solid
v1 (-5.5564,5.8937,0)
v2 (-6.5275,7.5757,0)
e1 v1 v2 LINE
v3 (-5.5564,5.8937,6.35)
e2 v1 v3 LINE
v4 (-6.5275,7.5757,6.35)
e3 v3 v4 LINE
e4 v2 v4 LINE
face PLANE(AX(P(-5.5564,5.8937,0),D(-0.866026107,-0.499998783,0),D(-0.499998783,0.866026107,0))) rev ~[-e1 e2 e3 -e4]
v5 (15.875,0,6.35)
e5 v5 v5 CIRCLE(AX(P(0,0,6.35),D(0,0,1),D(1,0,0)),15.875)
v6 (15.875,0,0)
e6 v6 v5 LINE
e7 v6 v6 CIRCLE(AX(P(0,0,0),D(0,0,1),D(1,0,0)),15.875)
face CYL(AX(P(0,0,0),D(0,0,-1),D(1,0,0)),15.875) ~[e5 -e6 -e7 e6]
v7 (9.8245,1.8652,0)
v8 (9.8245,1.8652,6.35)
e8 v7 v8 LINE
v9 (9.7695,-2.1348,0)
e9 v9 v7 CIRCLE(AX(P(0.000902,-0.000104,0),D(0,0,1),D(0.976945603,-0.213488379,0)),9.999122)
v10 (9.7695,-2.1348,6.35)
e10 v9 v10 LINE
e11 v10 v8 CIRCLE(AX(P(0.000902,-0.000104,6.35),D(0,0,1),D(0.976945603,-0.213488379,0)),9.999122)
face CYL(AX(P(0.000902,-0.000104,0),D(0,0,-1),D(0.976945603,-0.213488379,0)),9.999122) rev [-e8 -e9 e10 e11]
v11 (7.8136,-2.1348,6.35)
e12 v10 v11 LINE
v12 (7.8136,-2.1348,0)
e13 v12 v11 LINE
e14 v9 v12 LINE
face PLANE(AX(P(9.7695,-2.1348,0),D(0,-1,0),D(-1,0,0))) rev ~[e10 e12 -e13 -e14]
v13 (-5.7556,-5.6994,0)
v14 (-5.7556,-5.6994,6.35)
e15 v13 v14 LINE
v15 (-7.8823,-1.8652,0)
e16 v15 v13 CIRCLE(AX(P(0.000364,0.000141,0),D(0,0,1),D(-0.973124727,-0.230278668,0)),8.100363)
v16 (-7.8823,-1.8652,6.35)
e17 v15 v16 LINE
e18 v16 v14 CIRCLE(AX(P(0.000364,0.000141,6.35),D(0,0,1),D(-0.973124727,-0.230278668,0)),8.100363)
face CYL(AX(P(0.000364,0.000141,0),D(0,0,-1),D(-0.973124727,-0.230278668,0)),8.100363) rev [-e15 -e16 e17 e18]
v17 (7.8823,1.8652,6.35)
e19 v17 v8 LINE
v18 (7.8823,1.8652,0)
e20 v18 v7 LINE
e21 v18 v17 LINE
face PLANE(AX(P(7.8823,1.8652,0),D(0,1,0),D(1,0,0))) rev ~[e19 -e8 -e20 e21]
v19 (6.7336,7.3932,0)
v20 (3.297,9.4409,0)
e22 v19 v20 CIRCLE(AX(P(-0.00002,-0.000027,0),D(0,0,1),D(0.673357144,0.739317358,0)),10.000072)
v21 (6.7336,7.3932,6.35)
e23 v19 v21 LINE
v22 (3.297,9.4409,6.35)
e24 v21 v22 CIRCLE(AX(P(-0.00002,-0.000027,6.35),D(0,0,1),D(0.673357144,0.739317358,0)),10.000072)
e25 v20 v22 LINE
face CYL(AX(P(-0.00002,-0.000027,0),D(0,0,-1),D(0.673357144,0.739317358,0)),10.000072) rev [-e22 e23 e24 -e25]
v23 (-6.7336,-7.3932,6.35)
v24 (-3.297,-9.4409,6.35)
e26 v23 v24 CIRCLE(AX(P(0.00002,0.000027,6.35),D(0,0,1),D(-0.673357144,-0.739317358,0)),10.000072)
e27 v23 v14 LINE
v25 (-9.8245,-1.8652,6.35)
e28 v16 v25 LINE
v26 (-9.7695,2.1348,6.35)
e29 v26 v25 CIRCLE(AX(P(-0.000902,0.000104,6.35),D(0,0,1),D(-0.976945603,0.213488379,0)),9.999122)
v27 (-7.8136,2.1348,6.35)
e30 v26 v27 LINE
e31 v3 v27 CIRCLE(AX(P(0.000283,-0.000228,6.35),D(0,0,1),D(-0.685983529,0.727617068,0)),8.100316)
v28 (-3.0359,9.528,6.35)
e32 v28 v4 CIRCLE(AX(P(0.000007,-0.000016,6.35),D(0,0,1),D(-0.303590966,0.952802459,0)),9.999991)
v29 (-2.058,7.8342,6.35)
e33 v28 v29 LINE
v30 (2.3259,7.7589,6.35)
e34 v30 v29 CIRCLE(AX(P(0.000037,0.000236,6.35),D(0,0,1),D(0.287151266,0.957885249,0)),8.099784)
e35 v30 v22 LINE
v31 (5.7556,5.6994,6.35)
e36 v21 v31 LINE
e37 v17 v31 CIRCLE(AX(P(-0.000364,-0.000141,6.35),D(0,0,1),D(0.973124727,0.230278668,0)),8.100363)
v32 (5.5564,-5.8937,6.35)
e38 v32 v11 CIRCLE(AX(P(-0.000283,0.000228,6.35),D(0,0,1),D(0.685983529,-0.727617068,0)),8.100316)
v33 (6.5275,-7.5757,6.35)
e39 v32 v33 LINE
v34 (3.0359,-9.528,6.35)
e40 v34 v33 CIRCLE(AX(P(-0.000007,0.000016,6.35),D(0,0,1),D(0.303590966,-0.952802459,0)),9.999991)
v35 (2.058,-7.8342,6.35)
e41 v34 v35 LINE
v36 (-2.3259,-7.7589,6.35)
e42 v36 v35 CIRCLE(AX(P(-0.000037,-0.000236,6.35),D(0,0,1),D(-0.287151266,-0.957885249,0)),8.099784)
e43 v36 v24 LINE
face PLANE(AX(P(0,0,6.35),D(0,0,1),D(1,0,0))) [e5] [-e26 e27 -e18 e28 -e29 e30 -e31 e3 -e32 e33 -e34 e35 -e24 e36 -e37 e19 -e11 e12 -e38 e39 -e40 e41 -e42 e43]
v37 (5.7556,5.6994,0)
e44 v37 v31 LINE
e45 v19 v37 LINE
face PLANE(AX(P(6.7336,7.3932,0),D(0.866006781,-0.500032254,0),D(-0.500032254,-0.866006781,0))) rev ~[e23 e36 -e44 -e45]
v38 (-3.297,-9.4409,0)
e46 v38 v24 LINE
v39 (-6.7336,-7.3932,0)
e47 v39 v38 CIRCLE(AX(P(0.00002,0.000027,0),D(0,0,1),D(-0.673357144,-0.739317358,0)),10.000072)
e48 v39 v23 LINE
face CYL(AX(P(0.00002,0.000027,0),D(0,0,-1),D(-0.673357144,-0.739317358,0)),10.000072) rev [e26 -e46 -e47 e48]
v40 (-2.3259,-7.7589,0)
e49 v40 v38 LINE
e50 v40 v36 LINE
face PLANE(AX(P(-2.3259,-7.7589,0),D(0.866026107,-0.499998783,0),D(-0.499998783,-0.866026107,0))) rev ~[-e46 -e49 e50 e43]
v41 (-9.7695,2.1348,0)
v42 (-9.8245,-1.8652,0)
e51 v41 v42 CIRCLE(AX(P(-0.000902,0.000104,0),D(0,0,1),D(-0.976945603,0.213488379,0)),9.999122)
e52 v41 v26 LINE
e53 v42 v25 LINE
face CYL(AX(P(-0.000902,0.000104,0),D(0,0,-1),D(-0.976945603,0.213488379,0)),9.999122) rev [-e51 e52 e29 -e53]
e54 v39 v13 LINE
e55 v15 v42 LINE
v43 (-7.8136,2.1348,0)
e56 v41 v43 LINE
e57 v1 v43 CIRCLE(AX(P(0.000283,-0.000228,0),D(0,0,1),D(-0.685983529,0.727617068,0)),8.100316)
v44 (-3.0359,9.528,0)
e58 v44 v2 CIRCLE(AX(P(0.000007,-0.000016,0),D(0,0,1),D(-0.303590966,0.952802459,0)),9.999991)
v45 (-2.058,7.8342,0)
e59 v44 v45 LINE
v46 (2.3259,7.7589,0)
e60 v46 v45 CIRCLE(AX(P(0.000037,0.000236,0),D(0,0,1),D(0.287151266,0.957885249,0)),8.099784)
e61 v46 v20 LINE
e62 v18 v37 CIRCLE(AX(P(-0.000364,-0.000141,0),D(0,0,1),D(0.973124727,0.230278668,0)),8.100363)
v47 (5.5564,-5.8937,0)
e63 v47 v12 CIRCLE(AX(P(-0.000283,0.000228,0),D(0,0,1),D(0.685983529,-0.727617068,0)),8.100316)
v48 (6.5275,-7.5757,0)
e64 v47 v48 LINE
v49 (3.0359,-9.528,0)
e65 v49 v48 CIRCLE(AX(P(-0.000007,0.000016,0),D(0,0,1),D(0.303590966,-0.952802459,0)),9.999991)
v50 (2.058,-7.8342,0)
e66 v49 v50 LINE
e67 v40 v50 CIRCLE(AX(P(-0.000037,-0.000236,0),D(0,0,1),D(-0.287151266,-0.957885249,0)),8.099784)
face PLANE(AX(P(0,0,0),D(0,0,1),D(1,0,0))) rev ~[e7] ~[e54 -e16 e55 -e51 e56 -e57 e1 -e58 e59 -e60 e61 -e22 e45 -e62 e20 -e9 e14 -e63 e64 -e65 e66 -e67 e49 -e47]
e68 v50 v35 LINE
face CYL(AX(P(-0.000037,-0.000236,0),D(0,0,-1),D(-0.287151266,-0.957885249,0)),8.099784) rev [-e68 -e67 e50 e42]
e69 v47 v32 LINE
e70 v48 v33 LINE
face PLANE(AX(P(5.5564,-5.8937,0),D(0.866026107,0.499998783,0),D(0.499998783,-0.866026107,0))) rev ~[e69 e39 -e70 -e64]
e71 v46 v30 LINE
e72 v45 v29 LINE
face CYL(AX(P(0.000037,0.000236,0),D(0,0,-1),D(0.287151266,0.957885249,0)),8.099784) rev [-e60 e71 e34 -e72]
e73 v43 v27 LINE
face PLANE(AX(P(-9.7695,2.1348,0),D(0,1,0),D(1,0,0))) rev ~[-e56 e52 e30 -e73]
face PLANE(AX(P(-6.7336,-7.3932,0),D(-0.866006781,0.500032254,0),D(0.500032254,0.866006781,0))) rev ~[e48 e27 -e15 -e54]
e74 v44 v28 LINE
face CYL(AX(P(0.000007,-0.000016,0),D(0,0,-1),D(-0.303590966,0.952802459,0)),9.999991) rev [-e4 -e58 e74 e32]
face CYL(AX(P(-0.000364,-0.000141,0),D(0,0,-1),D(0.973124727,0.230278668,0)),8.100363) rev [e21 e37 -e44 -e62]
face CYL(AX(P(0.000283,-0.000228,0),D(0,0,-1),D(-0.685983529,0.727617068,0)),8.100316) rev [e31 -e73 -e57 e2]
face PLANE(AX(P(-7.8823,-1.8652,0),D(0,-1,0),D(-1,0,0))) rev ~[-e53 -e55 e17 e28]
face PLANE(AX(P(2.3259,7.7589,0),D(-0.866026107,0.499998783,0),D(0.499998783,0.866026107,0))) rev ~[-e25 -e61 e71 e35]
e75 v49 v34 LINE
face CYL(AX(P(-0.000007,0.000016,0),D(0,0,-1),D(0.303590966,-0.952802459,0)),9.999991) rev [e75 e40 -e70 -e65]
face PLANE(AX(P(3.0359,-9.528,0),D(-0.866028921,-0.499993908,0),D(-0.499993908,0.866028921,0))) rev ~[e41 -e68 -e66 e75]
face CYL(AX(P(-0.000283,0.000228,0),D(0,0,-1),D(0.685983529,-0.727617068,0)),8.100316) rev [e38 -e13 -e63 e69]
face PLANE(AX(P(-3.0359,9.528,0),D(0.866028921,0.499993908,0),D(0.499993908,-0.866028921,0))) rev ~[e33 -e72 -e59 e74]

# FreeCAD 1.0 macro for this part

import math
import FreeCAD as App
import Part
import Sketcher
from FreeCAD import Vector
Q = App.Units.Quantity

doc = App.newDocument("Part")
params = doc.addObject("Spreadsheet::Sheet", "Params")
for row, (alias, value) in enumerate([
    ("sketch1_diameter", "1.25 in"),
    ("sketch1_width", "0.077 in"),
    ("sketch1_length", "0.077 in"),
    ("pad1_length", "0.25 in"),
], start=1):
    params.set(f"A{row}", alias)
    params.set(f"B{row}", "=" + value)
    params.setAlias(f"B{row}", alias)

body = doc.addObject("PartDesign::Body", "Body")

sketch1 = body.newObject("Sketcher::SketchObject", "Sketch")
sketch1.AttachmentSupport = (doc.getObject("XY_Plane"), [""])
sketch1.MapMode = "FlatFace"
sketch1.addGeometry([
    Part.Circle(Vector(0, 0, 0), Vector(0, 0, 1), 15.9),
    Part.ArcOfCircle(Part.Circle(Vector(0, 0, 0), Vector(0, 0, 1), 8.1), math.radians(13), math.radians(45)),
    Part.LineSegment(Vector(7.9, 1.9, 0), Vector(9.8, 1.9, 0)),
    Part.ArcOfCircle(Part.Circle(Vector(0, 0, 0), Vector(0, 0, 1), 10), math.radians(-12), math.radians(11)),
    Part.LineSegment(Vector(9.8, -2.1, 0), Vector(7.8, -2.1, 0)),
    Part.ArcOfCircle(Part.Circle(Vector(0, 0, 0), Vector(0, 0, 1), 8.1), math.radians(-47), math.radians(-15)),
    Part.LineSegment(Vector(5.6, -5.9, 0), Vector(6.5, -7.6, 0)),
    Part.ArcOfCircle(Part.Circle(Vector(0, 0, 0), Vector(0, 0, 1), 10), math.radians(-72), math.radians(-49)),
    Part.LineSegment(Vector(3, -9.5, 0), Vector(2.1, -7.8, 0)),
    Part.ArcOfCircle(Part.Circle(Vector(0, 0, 0), Vector(0, 0, 1), 8.1), math.radians(-107), math.radians(-75)),
    Part.LineSegment(Vector(-2.3, -7.8, 0), Vector(-3.3, -9.4, 0)),
    Part.ArcOfCircle(Part.Circle(Vector(0, 0, 0), Vector(0, 0, 1), 10), math.radians(-132), math.radians(-109)),
    Part.LineSegment(Vector(-6.7, -7.4, 0), Vector(-5.8, -5.7, 0)),
    Part.ArcOfCircle(Part.Circle(Vector(0, 0, 0), Vector(0, 0, 1), 8.1), math.radians(-167), math.radians(-135)),
    Part.LineSegment(Vector(-7.9, -1.9, 0), Vector(-9.8, -1.9, 0)),
    Part.ArcOfCircle(Part.Circle(Vector(0, 0, 0), Vector(0, 0, 1), 10), math.radians(168), math.radians(191)),
    Part.LineSegment(Vector(-9.8, 2.1, 0), Vector(-7.8, 2.1, 0)),
    Part.ArcOfCircle(Part.Circle(Vector(0, 0, 0), Vector(0, 0, 1), 8.1), math.radians(133), math.radians(165)),
    Part.LineSegment(Vector(-5.6, 5.9, 0), Vector(-6.5, 7.6, 0)),
    Part.ArcOfCircle(Part.Circle(Vector(0, 0, 0), Vector(0, 0, 1), 10), math.radians(108), math.radians(131)),
    Part.LineSegment(Vector(-3, 9.5, 0), Vector(-2.1, 7.8, 0)),
    Part.ArcOfCircle(Part.Circle(Vector(0, 0, 0), Vector(0, 0, 1), 8.1), math.radians(73), math.radians(105)),
    Part.LineSegment(Vector(2.3, 7.8, 0), Vector(3.3, 9.4, 0)),
    Part.ArcOfCircle(Part.Circle(Vector(0, 0, 0), Vector(0, 0, 1), 10), math.radians(48), math.radians(71)),
    Part.LineSegment(Vector(6.7, 7.4, 0), Vector(5.8, 5.7, 0)),
], False)
sketch1.addConstraint([
    Sketcher.Constraint("Coincident", 1, 1, 2, 1),
    Sketcher.Constraint("Coincident", 2, 2, 3, 2),
    Sketcher.Constraint("Coincident", 3, 1, 4, 1),
    Sketcher.Constraint("Coincident", 4, 2, 5, 2),
    Sketcher.Constraint("Coincident", 5, 1, 6, 1),
    Sketcher.Constraint("Coincident", 6, 2, 7, 2),
    Sketcher.Constraint("Coincident", 7, 1, 8, 1),
    Sketcher.Constraint("Coincident", 8, 2, 9, 2),
    Sketcher.Constraint("Coincident", 9, 1, 10, 1),
    Sketcher.Constraint("Coincident", 10, 2, 11, 2),
    Sketcher.Constraint("Coincident", 11, 1, 12, 1),
    Sketcher.Constraint("Coincident", 12, 2, 13, 2),
    Sketcher.Constraint("Coincident", 13, 1, 14, 1),
    Sketcher.Constraint("Coincident", 14, 2, 15, 2),
    Sketcher.Constraint("Coincident", 15, 1, 16, 1),
    Sketcher.Constraint("Coincident", 16, 2, 17, 2),
    Sketcher.Constraint("Coincident", 17, 1, 18, 1),
    Sketcher.Constraint("Coincident", 18, 2, 19, 2),
    Sketcher.Constraint("Coincident", 19, 1, 20, 1),
    Sketcher.Constraint("Coincident", 20, 2, 21, 2),
    Sketcher.Constraint("Coincident", 21, 1, 22, 1),
    Sketcher.Constraint("Coincident", 22, 2, 23, 2),
    Sketcher.Constraint("Coincident", 23, 1, 24, 1),
    Sketcher.Constraint("Coincident", 24, 2, 1, 2),
    Sketcher.Constraint("Horizontal", 2),
    Sketcher.Constraint("Horizontal", 4),
    Sketcher.Constraint("Horizontal", 14),
    Sketcher.Constraint("Horizontal", 16),
    Sketcher.Constraint("Coincident", 0, 3, -1, 1),
    Sketcher.Constraint("Coincident", 1, 3, -1, 1),
    Sketcher.Constraint("Coincident", 3, 3, -1, 1),
    Sketcher.Constraint("Coincident", 5, 3, -1, 1),
    Sketcher.Constraint("Coincident", 7, 3, -1, 1),
    Sketcher.Constraint("Coincident", 9, 3, -1, 1),
    Sketcher.Constraint("Coincident", 11, 3, -1, 1),
    Sketcher.Constraint("Coincident", 13, 3, -1, 1),
    Sketcher.Constraint("Coincident", 15, 3, -1, 1),
    Sketcher.Constraint("Coincident", 17, 3, -1, 1),
    Sketcher.Constraint("Coincident", 19, 3, -1, 1),
    Sketcher.Constraint("Coincident", 21, 3, -1, 1),
    Sketcher.Constraint("Coincident", 23, 3, -1, 1),
    Sketcher.Constraint("Equal", 1, 5),
    Sketcher.Constraint("Equal", 3, 7),
    Sketcher.Constraint("Equal", 5, 9),
    Sketcher.Constraint("Equal", 7, 11),
    Sketcher.Constraint("Equal", 9, 13),
    Sketcher.Constraint("Equal", 11, 15),
    Sketcher.Constraint("Equal", 13, 17),
    Sketcher.Constraint("Equal", 15, 19),
    Sketcher.Constraint("Equal", 17, 21),
    Sketcher.Constraint("Equal", 19, 23),
    Sketcher.Constraint("Parallel", 6, 8),
    Sketcher.Constraint("Parallel", 10, 12),
    Sketcher.Constraint("Parallel", 8, 18),
    Sketcher.Constraint("Parallel", 18, 20),
    Sketcher.Constraint("Parallel", 12, 22),
    Sketcher.Constraint("Parallel", 22, 24),
    Sketcher.Constraint("Equal", 2, 14),
    Sketcher.Constraint("Equal", 4, 16),
    Sketcher.Constraint("Equal", 6, 10),
    Sketcher.Constraint("Equal", 8, 12),
    Sketcher.Constraint("Equal", 10, 18),
    Sketcher.Constraint("Equal", 12, 20),
    Sketcher.Constraint("Equal", 18, 22),
    Sketcher.Constraint("Equal", 20, 24),
    Sketcher.Constraint("Diameter", 0, Q("1.25 in")),
    Sketcher.Constraint("Angle", 6, Q("-60 deg")),
    Sketcher.Constraint("Angle", 10, Q("-120 deg")),
    Sketcher.Constraint("Radius", 1, Q("0.3189 in")),
    Sketcher.Constraint("Radius", 3, Q("0.3937 in")),
    Sketcher.Constraint("DistanceX", 4, 2, 4, 1, Q("0.077 in")),
    Sketcher.Constraint("Distance", 8, Q("0.077 in")),
    Sketcher.Constraint("DistanceX", -1, 1, 5, 1, Q("0.2187559 in")),
    Sketcher.Constraint("DistanceX", 13, 1, 9, 1, 5.5565),
])
sketch1.setExpression("Constraints[65]", "Params.sketch1_diameter")
sketch1.setExpression("Constraints[70]", "Params.sketch1_width")
sketch1.setExpression("Constraints[71]", "Params.sketch1_length")
pad1 = body.newObject("PartDesign::Pad", "Pad")
pad1.Profile = sketch1
pad1.setExpression("Length", "Params.pad1_length")

doc.recompute()
